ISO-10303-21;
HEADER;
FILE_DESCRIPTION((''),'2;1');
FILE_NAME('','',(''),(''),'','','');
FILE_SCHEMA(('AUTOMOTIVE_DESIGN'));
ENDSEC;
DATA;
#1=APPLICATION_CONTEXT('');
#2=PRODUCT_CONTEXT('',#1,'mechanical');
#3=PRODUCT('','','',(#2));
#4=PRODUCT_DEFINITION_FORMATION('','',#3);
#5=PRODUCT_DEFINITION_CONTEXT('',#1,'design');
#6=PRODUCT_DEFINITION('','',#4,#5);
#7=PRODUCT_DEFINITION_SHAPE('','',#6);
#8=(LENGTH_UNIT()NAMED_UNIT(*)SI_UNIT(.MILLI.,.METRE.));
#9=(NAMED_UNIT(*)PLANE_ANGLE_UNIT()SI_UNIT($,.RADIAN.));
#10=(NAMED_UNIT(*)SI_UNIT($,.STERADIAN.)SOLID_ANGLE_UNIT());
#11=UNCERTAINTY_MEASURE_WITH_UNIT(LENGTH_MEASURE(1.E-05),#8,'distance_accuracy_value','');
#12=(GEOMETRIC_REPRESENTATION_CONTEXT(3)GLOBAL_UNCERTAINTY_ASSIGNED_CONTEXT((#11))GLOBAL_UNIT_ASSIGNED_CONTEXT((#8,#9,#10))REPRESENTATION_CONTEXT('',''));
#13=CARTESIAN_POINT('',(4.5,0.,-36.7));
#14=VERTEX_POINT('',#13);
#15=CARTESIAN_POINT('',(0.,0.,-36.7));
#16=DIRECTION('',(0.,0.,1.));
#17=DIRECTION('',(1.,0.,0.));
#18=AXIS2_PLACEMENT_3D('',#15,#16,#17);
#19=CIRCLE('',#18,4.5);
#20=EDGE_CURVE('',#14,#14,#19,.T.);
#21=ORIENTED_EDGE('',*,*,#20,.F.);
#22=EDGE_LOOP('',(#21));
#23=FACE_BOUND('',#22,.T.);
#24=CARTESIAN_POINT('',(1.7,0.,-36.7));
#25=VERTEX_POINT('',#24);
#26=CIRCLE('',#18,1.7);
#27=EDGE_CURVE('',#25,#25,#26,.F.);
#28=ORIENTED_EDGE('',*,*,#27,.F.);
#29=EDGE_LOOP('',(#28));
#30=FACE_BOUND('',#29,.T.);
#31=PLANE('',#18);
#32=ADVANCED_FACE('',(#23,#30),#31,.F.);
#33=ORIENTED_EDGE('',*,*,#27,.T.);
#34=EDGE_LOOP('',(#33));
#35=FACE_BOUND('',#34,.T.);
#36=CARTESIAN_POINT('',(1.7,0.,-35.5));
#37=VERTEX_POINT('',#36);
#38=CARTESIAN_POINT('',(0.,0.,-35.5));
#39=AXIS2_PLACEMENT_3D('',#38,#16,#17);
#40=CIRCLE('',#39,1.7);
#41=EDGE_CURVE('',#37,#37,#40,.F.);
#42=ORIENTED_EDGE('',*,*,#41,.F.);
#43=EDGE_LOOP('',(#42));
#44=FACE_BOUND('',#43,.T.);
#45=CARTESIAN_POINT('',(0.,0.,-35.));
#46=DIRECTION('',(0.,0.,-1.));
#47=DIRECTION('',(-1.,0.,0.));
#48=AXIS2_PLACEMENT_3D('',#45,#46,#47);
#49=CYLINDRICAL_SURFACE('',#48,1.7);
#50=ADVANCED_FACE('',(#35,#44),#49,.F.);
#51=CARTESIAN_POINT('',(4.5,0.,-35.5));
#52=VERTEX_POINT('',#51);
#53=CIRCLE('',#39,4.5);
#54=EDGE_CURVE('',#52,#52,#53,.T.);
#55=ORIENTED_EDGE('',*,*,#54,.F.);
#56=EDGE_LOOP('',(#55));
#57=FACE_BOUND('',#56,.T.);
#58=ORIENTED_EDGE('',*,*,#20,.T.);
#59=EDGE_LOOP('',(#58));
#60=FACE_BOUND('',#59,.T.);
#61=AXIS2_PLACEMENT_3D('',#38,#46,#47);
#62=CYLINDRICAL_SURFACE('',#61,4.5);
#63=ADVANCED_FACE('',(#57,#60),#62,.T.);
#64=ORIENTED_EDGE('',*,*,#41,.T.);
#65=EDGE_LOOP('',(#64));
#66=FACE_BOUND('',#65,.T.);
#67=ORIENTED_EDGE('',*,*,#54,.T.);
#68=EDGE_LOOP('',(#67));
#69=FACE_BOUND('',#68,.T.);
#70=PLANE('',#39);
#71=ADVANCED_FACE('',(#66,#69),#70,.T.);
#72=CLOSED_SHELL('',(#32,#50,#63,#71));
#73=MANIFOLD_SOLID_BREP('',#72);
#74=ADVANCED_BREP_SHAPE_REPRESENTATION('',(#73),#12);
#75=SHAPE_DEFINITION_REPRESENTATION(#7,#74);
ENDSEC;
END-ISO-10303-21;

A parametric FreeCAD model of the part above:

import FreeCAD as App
import Part
import Sketcher

doc = App.newDocument("Part")
body = doc.addObject("PartDesign::Body", "Body")

# Sketch on XY plane
sketch1 = body.newObject("Sketcher::SketchObject", "Sketch")
sketch1.AttachmentSupport = (doc.getObject("XY_Plane"), [""])
sketch1.MapMode = "FlatFace"
sketch1.addGeometry(Part.Circle(App.Vector(0, 0, 0), App.Vector(0, 0, 1), 4.5), False)
sketch1.addConstraint(Sketcher.Constraint("Coincident", 0, 3, -1, 1))
sketch1.addConstraint(Sketcher.Constraint("Diameter", 0, 9.0))
pad1 = body.newObject("PartDesign::Pad", "Pad")
pad1.Profile = sketch1
pad1.Length = 1.2
body2 = doc.addObject("PartDesign::Body", "Body001")
doc.recompute()

body.Placement = App.Placement(App.Vector(0, 0, -36.7), App.Rotation(App.Vector(0, 0, 1), 0))
boolean = body2.newObject("PartDesign::Boolean", "Boolean")
boolean.Type = "Fuse"
boolean.addObjects([body])
body3 = doc.addObject("PartDesign::Body", "Body002")

# Sketch on XY plane
sketch2 = body3.newObject("Sketcher::SketchObject", "Sketch001")
sketch2.AttachmentSupport = (doc.getObject("XY_Plane002"), [""])
sketch2.MapMode = "FlatFace"
sketch2.addGeometry(Part.Circle(App.Vector(0, 0, 0), App.Vector(0, 0, 1), 1.7), False)
sketch2.addConstraint(Sketcher.Constraint("Coincident", 0, 3, -1, 1))
sketch2.addConstraint(Sketcher.Constraint("Diameter", 0, 3.4))
pad2 = body3.newObject("PartDesign::Pad", "Pad001")
pad2.Profile = sketch2
pad2.Length = 2
body4 = doc.addObject("PartDesign::Body", "Body003")
doc.recompute()

body3.Placement = App.Placement(App.Vector(0, 0, -37), App.Rotation(App.Vector(0, 0, 1), 0))
boolean2 = body4.newObject("PartDesign::Boolean", "Boolean001")
boolean2.Type = "Fuse"
boolean2.addObjects([body3])
doc.recompute()

boolean3 = body2.newObject("PartDesign::Boolean", "Boolean002")
boolean3.Type = "Cut"
boolean3.addObjects([body4])

doc.recompute()
